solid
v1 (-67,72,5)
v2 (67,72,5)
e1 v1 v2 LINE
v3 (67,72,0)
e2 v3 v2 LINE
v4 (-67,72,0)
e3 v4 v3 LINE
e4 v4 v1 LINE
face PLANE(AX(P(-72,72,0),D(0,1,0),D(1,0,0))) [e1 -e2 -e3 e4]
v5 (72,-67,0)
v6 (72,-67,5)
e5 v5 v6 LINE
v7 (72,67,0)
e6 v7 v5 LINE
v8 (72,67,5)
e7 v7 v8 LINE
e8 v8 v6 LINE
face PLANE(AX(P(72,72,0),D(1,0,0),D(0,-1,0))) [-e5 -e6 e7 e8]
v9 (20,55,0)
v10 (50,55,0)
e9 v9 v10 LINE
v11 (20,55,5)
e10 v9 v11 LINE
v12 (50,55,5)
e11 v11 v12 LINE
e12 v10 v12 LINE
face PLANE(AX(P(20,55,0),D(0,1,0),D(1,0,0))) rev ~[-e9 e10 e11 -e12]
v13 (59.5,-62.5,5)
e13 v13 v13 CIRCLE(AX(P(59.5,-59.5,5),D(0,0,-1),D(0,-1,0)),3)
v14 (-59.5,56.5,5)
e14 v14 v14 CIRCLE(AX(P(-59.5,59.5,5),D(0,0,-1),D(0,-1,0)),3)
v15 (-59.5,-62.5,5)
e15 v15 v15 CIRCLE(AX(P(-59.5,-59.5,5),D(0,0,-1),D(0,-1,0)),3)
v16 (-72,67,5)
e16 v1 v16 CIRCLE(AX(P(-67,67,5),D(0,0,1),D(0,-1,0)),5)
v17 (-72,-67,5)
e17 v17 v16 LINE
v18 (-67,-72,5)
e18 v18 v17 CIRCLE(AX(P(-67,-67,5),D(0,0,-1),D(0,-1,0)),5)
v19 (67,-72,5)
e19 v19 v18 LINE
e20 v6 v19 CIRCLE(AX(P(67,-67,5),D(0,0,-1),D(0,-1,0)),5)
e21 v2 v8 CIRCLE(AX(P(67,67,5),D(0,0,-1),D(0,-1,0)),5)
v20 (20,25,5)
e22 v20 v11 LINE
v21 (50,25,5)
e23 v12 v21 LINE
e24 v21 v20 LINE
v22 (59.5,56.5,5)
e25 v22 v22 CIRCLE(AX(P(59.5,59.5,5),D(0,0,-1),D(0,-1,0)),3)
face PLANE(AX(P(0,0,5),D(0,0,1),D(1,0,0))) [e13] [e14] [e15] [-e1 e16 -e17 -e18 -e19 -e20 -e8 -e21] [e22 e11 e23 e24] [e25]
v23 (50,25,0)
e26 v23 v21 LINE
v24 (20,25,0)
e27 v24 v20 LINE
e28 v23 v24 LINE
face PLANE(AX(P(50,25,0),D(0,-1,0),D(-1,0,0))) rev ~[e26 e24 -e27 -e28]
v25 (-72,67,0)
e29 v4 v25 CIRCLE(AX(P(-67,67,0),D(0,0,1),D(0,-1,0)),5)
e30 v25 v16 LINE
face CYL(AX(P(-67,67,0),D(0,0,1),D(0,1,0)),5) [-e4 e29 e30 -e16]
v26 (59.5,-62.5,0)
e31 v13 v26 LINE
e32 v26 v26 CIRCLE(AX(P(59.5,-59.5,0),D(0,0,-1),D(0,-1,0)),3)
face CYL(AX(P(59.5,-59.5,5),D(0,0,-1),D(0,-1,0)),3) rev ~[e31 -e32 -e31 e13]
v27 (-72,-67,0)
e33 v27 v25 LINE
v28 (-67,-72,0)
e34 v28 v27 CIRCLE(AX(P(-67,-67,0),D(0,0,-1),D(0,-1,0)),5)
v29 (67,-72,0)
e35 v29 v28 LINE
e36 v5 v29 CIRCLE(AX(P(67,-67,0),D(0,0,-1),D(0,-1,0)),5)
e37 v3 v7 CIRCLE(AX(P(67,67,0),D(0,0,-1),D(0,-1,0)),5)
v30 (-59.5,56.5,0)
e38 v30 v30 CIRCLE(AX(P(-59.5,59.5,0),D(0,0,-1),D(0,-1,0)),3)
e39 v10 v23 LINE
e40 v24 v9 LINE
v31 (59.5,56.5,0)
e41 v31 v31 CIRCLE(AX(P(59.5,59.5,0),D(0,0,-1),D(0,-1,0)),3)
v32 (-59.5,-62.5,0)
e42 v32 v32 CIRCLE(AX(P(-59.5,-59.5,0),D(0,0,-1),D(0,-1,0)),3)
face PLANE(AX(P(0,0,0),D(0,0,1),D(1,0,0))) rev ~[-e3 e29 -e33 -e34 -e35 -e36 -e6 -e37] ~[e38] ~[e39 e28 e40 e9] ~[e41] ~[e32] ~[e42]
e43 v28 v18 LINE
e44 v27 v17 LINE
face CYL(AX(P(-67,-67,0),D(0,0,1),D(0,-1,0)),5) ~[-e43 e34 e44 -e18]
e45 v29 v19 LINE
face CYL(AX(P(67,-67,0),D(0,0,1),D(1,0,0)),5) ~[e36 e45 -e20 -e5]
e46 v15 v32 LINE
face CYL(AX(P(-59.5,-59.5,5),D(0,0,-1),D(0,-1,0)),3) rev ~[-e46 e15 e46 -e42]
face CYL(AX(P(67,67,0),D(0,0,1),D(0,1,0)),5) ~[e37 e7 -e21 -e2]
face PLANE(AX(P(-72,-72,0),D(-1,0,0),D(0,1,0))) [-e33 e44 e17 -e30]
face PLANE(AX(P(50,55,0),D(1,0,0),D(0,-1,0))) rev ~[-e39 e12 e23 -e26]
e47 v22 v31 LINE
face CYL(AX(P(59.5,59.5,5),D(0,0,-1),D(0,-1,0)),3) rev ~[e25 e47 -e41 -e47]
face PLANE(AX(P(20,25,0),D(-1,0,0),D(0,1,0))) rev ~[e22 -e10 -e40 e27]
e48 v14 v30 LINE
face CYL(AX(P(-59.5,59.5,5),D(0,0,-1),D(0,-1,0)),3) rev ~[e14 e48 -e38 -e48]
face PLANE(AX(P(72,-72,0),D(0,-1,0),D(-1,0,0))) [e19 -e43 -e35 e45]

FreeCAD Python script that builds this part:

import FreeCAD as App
import Part
import Sketcher


def edges_at(feature, points):
    """Names of the edges that pass closest to the given points."""
    edges = feature.Shape.Edges
    near = lambda p: min(range(len(edges)), key=lambda i: edges[i].distToShape(Part.Vertex(*p))[0])
    return sorted({f"Edge{near(p) + 1}" for p in points})

doc = App.newDocument("Part")
params = doc.addObject("Spreadsheet::Sheet", "Params")
for row, (alias, value) in enumerate([
    ("sketch1_width", "144 mm"),
    ("sketch1_width2", "30 mm"),
    ("pad1_length", "5 mm"),
    ("fillet_radius", "5 mm"),
    ("sketch2_diameter", "6 mm"),
    ("hole_diameter", "6 mm"),
], start=1):
    params.set(f"A{row}", alias)
    params.set(f"B{row}", "=" + value)
    params.setAlias(f"B{row}", alias)

body = doc.addObject("PartDesign::Body", "Body")

# Sketch on XY plane
sketch1 = body.newObject("Sketcher::SketchObject", "Sketch")
sketch1.AttachmentSupport = (doc.getObject("XY_Plane"), [""])
sketch1.MapMode = "FlatFace"
sketch1.addGeometry([
    Part.LineSegment(App.Vector(72, 72, 0), App.Vector(-72, 72, 0)),  # 0
    Part.LineSegment(App.Vector(-72, 72, 0), App.Vector(-72, -72, 0)),  # 1
    Part.LineSegment(App.Vector(-72, -72, 0), App.Vector(72, -72, 0)),  # 2
    Part.LineSegment(App.Vector(72, -72, 0), App.Vector(72, 72, 0)),  # 3
    Part.LineSegment(App.Vector(20, 25, 0), App.Vector(20, 55, 0)),  # 4
    Part.LineSegment(App.Vector(20, 55, 0), App.Vector(50, 55, 0)),  # 5
    Part.LineSegment(App.Vector(50, 55, 0), App.Vector(50, 25, 0)),  # 6
    Part.LineSegment(App.Vector(50, 25, 0), App.Vector(20, 25, 0)),  # 7
], False)
sketch1.addConstraint([
    Sketcher.Constraint("Coincident", 0, 2, 1, 1),
    Sketcher.Constraint("Coincident", 1, 2, 2, 1),
    Sketcher.Constraint("Coincident", 2, 2, 3, 1),
    Sketcher.Constraint("Coincident", 3, 2, 0, 1),
    Sketcher.Constraint("Coincident", 4, 2, 5, 1),
    Sketcher.Constraint("Coincident", 5, 2, 6, 1),
    Sketcher.Constraint("Coincident", 6, 2, 7, 1),
    Sketcher.Constraint("Coincident", 7, 2, 4, 1),
    Sketcher.Constraint("Horizontal", 0),
    Sketcher.Constraint("Vertical", 1),
    Sketcher.Constraint("Horizontal", 2),
    Sketcher.Constraint("Vertical", 3),
    Sketcher.Constraint("Vertical", 4),
    Sketcher.Constraint("Horizontal", 5),
    Sketcher.Constraint("Vertical", 6),
    Sketcher.Constraint("Horizontal", 7),
    Sketcher.Constraint("Symmetric", 0, 2, 2, 2, -1, 1),
    Sketcher.Constraint("Equal", 2, 1),
    Sketcher.Constraint("Equal", 7, 4),
    Sketcher.Constraint("DistanceX", 0, 2, 0, 1, 144.0),
    Sketcher.Constraint("DistanceX", 5, 1, 5, 2, 30.0),
    Sketcher.Constraint("DistanceX", -1, 1, 4, 2, 20.0),
    Sketcher.Constraint("DistanceY", -1, 1, 6, 2, 25.0),
])
sketch1.setExpression("Constraints[19]", "Params.sketch1_width")
sketch1.setExpression("Constraints[20]", "Params.sketch1_width2")
pad1 = body.newObject("PartDesign::Pad", "Pad")
pad1.Profile = sketch1
pad1.setExpression("Length", "Params.pad1_length")
doc.recompute()

fillet = body.newObject("PartDesign::Fillet", "Fillet")
fillet.Base = (pad1, edges_at(pad1, [
    (-72, -72, 2.5),
    (72, -72, 2.5),
    (72, 72, 2.5),
    (-72, 72, 2.5),
]))
fillet.setExpression("Radius", "Params.fillet_radius")

# Sketch on XY plane
sketch2 = body.newObject("Sketcher::SketchObject", "Sketch001")
sketch2.AttachmentSupport = (doc.getObject("XY_Plane"), [""])
sketch2.MapMode = "FlatFace"
sketch2.AttachmentOffset = App.Placement(App.Vector(0, 0, 5), App.Rotation())
sketch2.addGeometry([
    Part.Circle(App.Vector(-59.5, 59.5, 0), App.Vector(0, 0, 1), 3),
    Part.Circle(App.Vector(59.5, 59.5, 0), App.Vector(0, 0, 1), 3),
    Part.Circle(App.Vector(59.5, -59.5, 0), App.Vector(0, 0, 1), 3),
    Part.Circle(App.Vector(-59.5, -59.5, 0), App.Vector(0, 0, 1), 3),
], False)
sketch2.addConstraint([
    Sketcher.Constraint("Equal", 0, 1),
    Sketcher.Constraint("Equal", 1, 2),
    Sketcher.Constraint("Equal", 2, 3),
    Sketcher.Constraint("Symmetric", 0, 3, 2, 3, -1, 1),
    Sketcher.Constraint("Symmetric", 1, 3, 3, 3, -1, 1),
    Sketcher.Constraint("Symmetric", 0, 3, 1, 3, -2),
    Sketcher.Constraint("Diameter", 0, 6.0),
    Sketcher.Constraint("DistanceX", 0, 3, 1, 3, 119.0),
    Sketcher.Constraint("DistanceY", 2, 3, 1, 3, 119.0),
])
sketch2.setExpression("Constraints[6]", "Params.sketch2_diameter")
doc.recompute()
hole = body.newObject("PartDesign::Hole", "Hole")
hole.Profile = sketch2
hole.ThreadType = "None"
hole.setExpression("Diameter", "Params.hole_diameter")
hole.DepthType = "ThroughAll"

doc.recompute()
